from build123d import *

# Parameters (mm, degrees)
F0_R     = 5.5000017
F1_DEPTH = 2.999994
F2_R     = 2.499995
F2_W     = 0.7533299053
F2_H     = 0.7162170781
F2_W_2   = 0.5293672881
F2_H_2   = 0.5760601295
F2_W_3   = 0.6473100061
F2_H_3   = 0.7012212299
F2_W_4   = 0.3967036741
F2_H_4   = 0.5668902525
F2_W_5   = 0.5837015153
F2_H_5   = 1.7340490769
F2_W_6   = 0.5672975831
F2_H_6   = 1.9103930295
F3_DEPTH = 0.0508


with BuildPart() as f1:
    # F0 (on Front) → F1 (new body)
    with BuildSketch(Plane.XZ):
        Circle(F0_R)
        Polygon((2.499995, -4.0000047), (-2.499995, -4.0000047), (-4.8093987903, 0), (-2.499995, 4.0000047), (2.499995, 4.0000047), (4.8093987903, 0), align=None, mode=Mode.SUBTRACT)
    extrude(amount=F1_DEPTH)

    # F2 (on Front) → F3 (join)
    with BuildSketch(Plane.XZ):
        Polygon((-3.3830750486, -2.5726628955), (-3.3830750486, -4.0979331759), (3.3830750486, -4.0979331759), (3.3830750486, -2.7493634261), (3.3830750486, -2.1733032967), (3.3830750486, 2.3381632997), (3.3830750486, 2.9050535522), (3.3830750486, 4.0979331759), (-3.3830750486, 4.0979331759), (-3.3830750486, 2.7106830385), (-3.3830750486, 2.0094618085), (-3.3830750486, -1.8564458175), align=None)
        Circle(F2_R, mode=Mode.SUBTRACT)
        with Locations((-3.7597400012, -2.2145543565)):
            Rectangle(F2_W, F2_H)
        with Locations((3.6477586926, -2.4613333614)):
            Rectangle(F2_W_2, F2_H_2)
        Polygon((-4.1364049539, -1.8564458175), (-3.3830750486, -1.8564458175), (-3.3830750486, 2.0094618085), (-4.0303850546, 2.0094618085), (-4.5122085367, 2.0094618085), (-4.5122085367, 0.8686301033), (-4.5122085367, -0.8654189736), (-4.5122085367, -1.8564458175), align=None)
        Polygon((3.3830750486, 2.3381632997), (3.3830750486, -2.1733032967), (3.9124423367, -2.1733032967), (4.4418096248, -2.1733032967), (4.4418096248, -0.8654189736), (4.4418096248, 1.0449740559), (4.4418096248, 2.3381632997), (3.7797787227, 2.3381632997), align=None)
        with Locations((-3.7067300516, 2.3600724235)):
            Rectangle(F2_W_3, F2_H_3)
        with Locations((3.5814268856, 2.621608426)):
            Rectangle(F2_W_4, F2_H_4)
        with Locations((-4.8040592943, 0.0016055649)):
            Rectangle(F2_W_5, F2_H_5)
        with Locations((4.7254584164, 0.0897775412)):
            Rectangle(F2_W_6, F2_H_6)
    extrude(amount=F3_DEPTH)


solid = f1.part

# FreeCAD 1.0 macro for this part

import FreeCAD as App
import Part
import Sketcher
from FreeCAD import Vector
Q = App.Units.Quantity

doc = App.newDocument("Part")
body = doc.addObject("PartDesign::Body", "Body")

# Sketch on XZ plane
sketch1 = doc.addObject("Sketcher::SketchObject", "Sketch")
body.addObject(sketch1)
sketch1.AttachmentSupport = (doc.XZ_Plane, [""])
sketch1.MapMode = "FlatFace"
sketch1.addGeometry([
    Part.Circle(Vector(0, 0, 0), Vector(0, 0, 1), 5.5),  # 0
    Part.LineSegment(Vector(4.8, 0, 0), Vector(2.5, -4, 0)),  # 1
    Part.LineSegment(Vector(2.5, -4, 0), Vector(-2.5, -4, 0)),  # 2
    Part.LineSegment(Vector(-2.5, -4, 0), Vector(-4.8, 0, 0)),  # 3
    Part.LineSegment(Vector(-4.8, 0, 0), Vector(-2.5, 4, 0)),  # 4
    Part.LineSegment(Vector(-2.5, 4, 0), Vector(2.5, 4, 0)),  # 5
    Part.LineSegment(Vector(2.5, 4, 0), Vector(4.8, 0, 0)),  # 6
], False)
sketch1.addConstraint([
    Sketcher.Constraint("Coincident", 1, 2, 2, 1),
    Sketcher.Constraint("Coincident", 2, 2, 3, 1),
    Sketcher.Constraint("Coincident", 3, 2, 4, 1),
    Sketcher.Constraint("Coincident", 4, 2, 5, 1),
    Sketcher.Constraint("Coincident", 5, 2, 6, 1),
    Sketcher.Constraint("Coincident", 6, 2, 1, 1),
    Sketcher.Constraint("Horizontal", 2),
    Sketcher.Constraint("Horizontal", 5),
    Sketcher.Constraint("Coincident", 0, 3, -1, 1),
    Sketcher.Constraint("Symmetric", 1, 2, 4, 2, -1, 1),
    Sketcher.Constraint("Symmetric", 3, 2, 6, 2, -1, 1),
    Sketcher.Constraint("PointOnObject", 3, 2, -1),
    Sketcher.Constraint("Parallel", 3, 6),
    Sketcher.Constraint("Vertical", 2, 2, 4, 2),
    Sketcher.Constraint("Angle", 1, Q("-120 deg")),
    Sketcher.Constraint("Diameter", 0, 11.000003),
    Sketcher.Constraint("DistanceX", 2, 2, 2, 1, 4.99999),
    Sketcher.Constraint("DistanceX", 3, 2, -1, 1, 4.809399),
])
pad1 = doc.addObject("PartDesign::Pad", "Pad")
body.addObject(pad1)
pad1.Profile = sketch1
pad1.Length = 2.999994

# Sketch on XZ plane
sketch2 = doc.addObject("Sketcher::SketchObject", "Sketch001")
body.addObject(sketch2)
sketch2.AttachmentSupport = (doc.XZ_Plane, [""])
sketch2.MapMode = "FlatFace"
sketch2.addGeometry([
    Part.LineSegment(Vector(-3.38, -4.1, 0), Vector(3.38, -4.1, 0)),  # 0
    Part.LineSegment(Vector(3.38, -4.1, 0), Vector(3.38, -2.75, 0)),  # 1
    Part.LineSegment(Vector(3.38, -2.75, 0), Vector(3.91, -2.75, 0)),  # 2
    Part.LineSegment(Vector(3.91, -2.75, 0), Vector(3.91, -2.17, 0)),  # 3
    Part.LineSegment(Vector(3.91, -2.17, 0), Vector(4.44, -2.17, 0)),  # 4
    Part.LineSegment(Vector(4.44, -2.17, 0), Vector(4.44, -0.87, 0)),  # 5
    Part.LineSegment(Vector(4.44, -0.87, 0), Vector(5.01, -0.87, 0)),  # 6
    Part.LineSegment(Vector(5.01, -0.87, 0), Vector(5.01, 1.04, 0)),  # 7
    Part.LineSegment(Vector(5.01, 1.04, 0), Vector(4.44, 1.04, 0)),  # 8
    Part.LineSegment(Vector(4.44, 1.04, 0), Vector(4.44, 2.34, 0)),  # 9
    Part.LineSegment(Vector(4.44, 2.34, 0), Vector(3.78, 2.34, 0)),  # 10
    Part.LineSegment(Vector(3.78, 2.34, 0), Vector(3.78, 2.91, 0)),  # 11
    Part.LineSegment(Vector(3.78, 2.91, 0), Vector(3.38, 2.91, 0)),  # 12
    Part.LineSegment(Vector(3.38, 2.91, 0), Vector(3.38, 4.1, 0)),  # 13
    Part.LineSegment(Vector(3.38, 4.1, 0), Vector(-3.38, 4.1, 0)),  # 14
    Part.LineSegment(Vector(-3.38, 4.1, 0), Vector(-3.38, 2.71, 0)),  # 15
    Part.LineSegment(Vector(-3.38, 2.71, 0), Vector(-4.03, 2.71, 0)),  # 16
    Part.LineSegment(Vector(-4.03, 2.71, 0), Vector(-4.03, 2.01, 0)),  # 17
    Part.LineSegment(Vector(-4.03, 2.01, 0), Vector(-4.51, 2.01, 0)),  # 18
    Part.LineSegment(Vector(-4.51, 2.01, 0), Vector(-4.51, 0.87, 0)),  # 19
    Part.LineSegment(Vector(-4.51, 0.87, 0), Vector(-5.1, 0.87, 0)),  # 20
    Part.LineSegment(Vector(-5.1, 0.87, 0), Vector(-5.1, -0.87, 0)),  # 21
    Part.LineSegment(Vector(-5.1, -0.87, 0), Vector(-4.51, -0.87, 0)),  # 22
    Part.LineSegment(Vector(-4.51, -0.87, 0), Vector(-4.51, -1.86, 0)),  # 23
    Part.LineSegment(Vector(-4.51, -1.86, 0), Vector(-4.14, -1.86, 0)),  # 24
    Part.LineSegment(Vector(-4.14, -1.86, 0), Vector(-4.14, -2.57, 0)),  # 25
    Part.LineSegment(Vector(-4.14, -2.57, 0), Vector(-3.38, -2.57, 0)),  # 26
    Part.LineSegment(Vector(-3.38, -2.57, 0), Vector(-3.38, -4.1, 0)),  # 27
    Part.Circle(Vector(0, 0, 0), Vector(0, 0, 1), 2.5),  # 28
], False)
sketch2.addConstraint([
    Sketcher.Constraint("Coincident", 0, 2, 1, 1),
    Sketcher.Constraint("Coincident", 1, 2, 2, 1),
    Sketcher.Constraint("Coincident", 2, 2, 3, 1),
    Sketcher.Constraint("Coincident", 3, 2, 4, 1),
    Sketcher.Constraint("Coincident", 4, 2, 5, 1),
    Sketcher.Constraint("Coincident", 5, 2, 6, 1),
    Sketcher.Constraint("Coincident", 6, 2, 7, 1),
    Sketcher.Constraint("Coincident", 7, 2, 8, 1),
    Sketcher.Constraint("Coincident", 8, 2, 9, 1),
    Sketcher.Constraint("Coincident", 9, 2, 10, 1),
    Sketcher.Constraint("Coincident", 10, 2, 11, 1),
    Sketcher.Constraint("Coincident", 11, 2, 12, 1),
    Sketcher.Constraint("Coincident", 12, 2, 13, 1),
    Sketcher.Constraint("Coincident", 13, 2, 14, 1),
    Sketcher.Constraint("Coincident", 14, 2, 15, 1),
    Sketcher.Constraint("Coincident", 15, 2, 16, 1),
    Sketcher.Constraint("Coincident", 16, 2, 17, 1),
    Sketcher.Constraint("Coincident", 17, 2, 18, 1),
    Sketcher.Constraint("Coincident", 18, 2, 19, 1),
    Sketcher.Constraint("Coincident", 19, 2, 20, 1),
    Sketcher.Constraint("Coincident", 20, 2, 21, 1),
    Sketcher.Constraint("Coincident", 21, 2, 22, 1),
    Sketcher.Constraint("Coincident", 22, 2, 23, 1),
    Sketcher.Constraint("Coincident", 23, 2, 24, 1),
    Sketcher.Constraint("Coincident", 24, 2, 25, 1),
    Sketcher.Constraint("Coincident", 25, 2, 26, 1),
    Sketcher.Constraint("Coincident", 26, 2, 27, 1),
    Sketcher.Constraint("Coincident", 27, 2, 0, 1),
    Sketcher.Constraint("Horizontal", 0),
    Sketcher.Constraint("Vertical", 1),
    Sketcher.Constraint("Horizontal", 2),
    Sketcher.Constraint("Vertical", 3),
    Sketcher.Constraint("Horizontal", 4),
    Sketcher.Constraint("Vertical", 5),
    Sketcher.Constraint("Horizontal", 6),
    Sketcher.Constraint("Vertical", 7),
    Sketcher.Constraint("Horizontal", 8),
    Sketcher.Constraint("Vertical", 9),
    Sketcher.Constraint("Horizontal", 10),
    Sketcher.Constraint("Vertical", 11),
    Sketcher.Constraint("Horizontal", 12),
    Sketcher.Constraint("Vertical", 13),
    Sketcher.Constraint("Horizontal", 14),
    Sketcher.Constraint("Vertical", 15),
    Sketcher.Constraint("Horizontal", 16),
    Sketcher.Constraint("Vertical", 17),
    Sketcher.Constraint("Horizontal", 18),
    Sketcher.Constraint("Vertical", 19),
    Sketcher.Constraint("Horizontal", 20),
    Sketcher.Constraint("Vertical", 21),
    Sketcher.Constraint("Horizontal", 22),
    Sketcher.Constraint("Vertical", 23),
    Sketcher.Constraint("Horizontal", 24),
    Sketcher.Constraint("Vertical", 25),
    Sketcher.Constraint("Horizontal", 26),
    Sketcher.Constraint("Vertical", 27),
    Sketcher.Constraint("Coincident", 28, 3, -1, 1),
    Sketcher.Constraint("Symmetric", 0, 2, 14, 2, -1, 1),
    Sketcher.Constraint("Horizontal", 6, 2, 21, 2),
    Sketcher.Constraint("Vertical", 5, 2, 8, 2),
    Sketcher.Constraint("Vertical", 1, 2, 12, 2),
    Sketcher.Constraint("Vertical", 19, 2, 22, 2),
    Sketcher.Constraint("Vertical", 15, 2, 26, 2),
    Sketcher.Constraint("Equal", 2, 4),
    Sketcher.Constraint("Diameter", 28, 4.99999),
    Sketcher.Constraint("DistanceX", 20, 2, 20, 1, 0.583702),
    Sketcher.Constraint("DistanceX", 0, 1, 0, 2, 6.76615),
    Sketcher.Constraint("DistanceX", 10, 2, 10, 1, 0.662031),
    Sketcher.Constraint("DistanceX", 16, 2, 16, 1, 0.64731),
    Sketcher.Constraint("DistanceX", 26, 1, 26, 2, 0.75333),
    Sketcher.Constraint("DistanceY", 1, 1, 1, 2, 1.34857),
    Sketcher.Constraint("DistanceY", 3, 1, 3, 2, 0.57606),
    Sketcher.Constraint("DistanceY", 9, 1, 9, 2, 1.293189),
    Sketcher.Constraint("DistanceY", 11, 1, 11, 2, 0.56689),
    Sketcher.Constraint("DistanceY", 13, 1, 13, 2, 1.19288),
    Sketcher.Constraint("DistanceY", 15, 2, 15, 1, 1.38725),
    Sketcher.Constraint("DistanceY", 17, 2, 17, 1, 0.701221),
    Sketcher.Constraint("DistanceY", 19, 2, 19, 1, 1.140832),
    Sketcher.Constraint("DistanceY", 21, 2, 21, 1, 1.734049),
    Sketcher.Constraint("DistanceY", 27, 2, 27, 1, 1.52527),
    Sketcher.Constraint("DistanceX", 2, 1, 2, 2, 0.529367),
    Sketcher.Constraint("DistanceX", 6, 1, 6, 2, 0.567298),
    Sketcher.Constraint("DistanceX", 18, 2, 18, 1, 0.481823),
    Sketcher.Constraint("DistanceY", 5, 1, 5, 2, 1.307884),
    Sketcher.Constraint("DistanceY", 23, 2, 23, 1, 0.991027),
])
pad2 = doc.addObject("PartDesign::Pad", "Pad001")
body.addObject(pad2)
pad2.Profile = sketch2
pad2.Length = Q("0.002 in")

doc.recompute()
